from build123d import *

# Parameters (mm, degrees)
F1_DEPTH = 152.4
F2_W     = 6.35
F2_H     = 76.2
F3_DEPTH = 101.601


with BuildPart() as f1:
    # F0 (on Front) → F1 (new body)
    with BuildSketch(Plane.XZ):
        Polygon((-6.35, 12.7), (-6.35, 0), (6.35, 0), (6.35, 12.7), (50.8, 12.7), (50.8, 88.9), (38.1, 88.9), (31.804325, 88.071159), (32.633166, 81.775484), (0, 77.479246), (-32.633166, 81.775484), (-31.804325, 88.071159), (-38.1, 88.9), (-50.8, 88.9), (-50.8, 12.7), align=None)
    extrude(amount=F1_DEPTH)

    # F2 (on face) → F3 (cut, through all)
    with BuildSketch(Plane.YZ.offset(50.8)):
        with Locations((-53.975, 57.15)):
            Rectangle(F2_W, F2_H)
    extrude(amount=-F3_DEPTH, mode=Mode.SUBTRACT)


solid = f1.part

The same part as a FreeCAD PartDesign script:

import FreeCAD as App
import Part
import Sketcher
Q = App.Units.Quantity

doc = App.newDocument("Part")
body = doc.addObject("PartDesign::Body", "Body")

sketch1 = doc.addObject("Sketcher::SketchObject", "Sketch")
body.addObject(sketch1)
sketch1.AttachmentSupport = (doc.XZ_Plane, [""])
sketch1.MapMode = "FlatFace"
sketch1.addGeometry(Part.LineSegment(App.Vector(-6.35, 12.7, 0), App.Vector(-6.35, 0, 0)), False)
sketch1.addGeometry(Part.LineSegment(App.Vector(-6.35, 0, 0), App.Vector(6.35, 0, 0)), False)
sketch1.addGeometry(Part.LineSegment(App.Vector(6.35, 0, 0), App.Vector(6.35, 12.7, 0)), False)
sketch1.addGeometry(Part.LineSegment(App.Vector(6.35, 12.7, 0), App.Vector(50.8, 12.7, 0)), False)
sketch1.addGeometry(Part.LineSegment(App.Vector(50.8, 12.7, 0), App.Vector(50.8, 88.9, 0)), False)
sketch1.addGeometry(Part.LineSegment(App.Vector(50.8, 88.9, 0), App.Vector(38.1, 88.9, 0)), False)
sketch1.addGeometry(Part.LineSegment(App.Vector(38.1, 88.9, 0), App.Vector(31.804325, 88.071159, 0)), False)
sketch1.addGeometry(Part.LineSegment(App.Vector(31.804325, 88.071159, 0), App.Vector(32.633166, 81.775484, 0)), False)
sketch1.addGeometry(Part.LineSegment(App.Vector(32.633166, 81.775484, 0), App.Vector(0, 77.479246, 0)), False)
sketch1.addGeometry(Part.LineSegment(App.Vector(0, 77.479246, 0), App.Vector(-32.633166, 81.775484, 0)), False)
sketch1.addGeometry(Part.LineSegment(App.Vector(-32.633166, 81.775484, 0), App.Vector(-31.804325, 88.071159, 0)), False)
sketch1.addGeometry(Part.LineSegment(App.Vector(-31.804325, 88.071159, 0), App.Vector(-38.1, 88.9, 0)), False)
sketch1.addGeometry(Part.LineSegment(App.Vector(-38.1, 88.9, 0), App.Vector(-50.8, 88.9, 0)), False)
sketch1.addGeometry(Part.LineSegment(App.Vector(-50.8, 88.9, 0), App.Vector(-50.8, 12.7, 0)), False)
sketch1.addGeometry(Part.LineSegment(App.Vector(-50.8, 12.7, 0), App.Vector(-6.35, 12.7, 0)), False)
sketch1.addConstraint(Sketcher.Constraint("Coincident", 0, 2, 1, 1))
sketch1.addConstraint(Sketcher.Constraint("Coincident", 1, 2, 2, 1))
sketch1.addConstraint(Sketcher.Constraint("Coincident", 2, 2, 3, 1))
sketch1.addConstraint(Sketcher.Constraint("Coincident", 3, 2, 4, 1))
sketch1.addConstraint(Sketcher.Constraint("Coincident", 4, 2, 5, 1))
sketch1.addConstraint(Sketcher.Constraint("Coincident", 5, 2, 6, 1))
sketch1.addConstraint(Sketcher.Constraint("Coincident", 6, 2, 7, 1))
sketch1.addConstraint(Sketcher.Constraint("Coincident", 7, 2, 8, 1))
sketch1.addConstraint(Sketcher.Constraint("Coincident", 8, 2, 9, 1))
sketch1.addConstraint(Sketcher.Constraint("Coincident", 9, 2, 10, 1))
sketch1.addConstraint(Sketcher.Constraint("Coincident", 10, 2, 11, 1))
sketch1.addConstraint(Sketcher.Constraint("Coincident", 11, 2, 12, 1))
sketch1.addConstraint(Sketcher.Constraint("Coincident", 12, 2, 13, 1))
sketch1.addConstraint(Sketcher.Constraint("Coincident", 13, 2, 14, 1))
sketch1.addConstraint(Sketcher.Constraint("Coincident", 14, 2, 0, 1))
sketch1.addConstraint(Sketcher.Constraint("Vertical", 0))
sketch1.addConstraint(Sketcher.Constraint("Horizontal", 1))
sketch1.addConstraint(Sketcher.Constraint("Vertical", 2))
sketch1.addConstraint(Sketcher.Constraint("Horizontal", 3))
sketch1.addConstraint(Sketcher.Constraint("Vertical", 4))
sketch1.addConstraint(Sketcher.Constraint("Horizontal", 5))
sketch1.addConstraint(Sketcher.Constraint("Horizontal", 12))
sketch1.addConstraint(Sketcher.Constraint("Vertical", 13))
sketch1.addConstraint(Sketcher.Constraint("Horizontal", 14))
sketch1.addConstraint(Sketcher.Constraint("Symmetric", 0, 2, 1, 2, -1, 1))
sketch1.addConstraint(Sketcher.Constraint("Symmetric", 7, 2, 9, 2, -2))
sketch1.addConstraint(Sketcher.Constraint("Symmetric", 6, 2, 10, 2, -2))
sketch1.addConstraint(Sketcher.Constraint("Symmetric", 5, 2, 11, 2, -2))
sketch1.addConstraint(Sketcher.Constraint("Symmetric", 3, 2, 13, 2, -2))
sketch1.addConstraint(Sketcher.Constraint("PointOnObject", 8, 2, -2))
sketch1.addConstraint(Sketcher.Constraint("Perpendicular", 6, 7))
sketch1.addConstraint(Sketcher.Constraint("Perpendicular", 7, 8))
sketch1.addConstraint(Sketcher.Constraint("Equal", 1, 5))
sketch1.addConstraint(Sketcher.Constraint("Equal", 12, 0))
sketch1.addConstraint(Sketcher.Constraint("Equal", 6, 7))
sketch1.addConstraint(Sketcher.Constraint("DistanceY", 4, 1, 4, 2, Q("3 in")))
sketch1.addConstraint(Sketcher.Constraint("DistanceX", 1, 1, 1, 2, Q("0.5 in")))
sketch1.addConstraint(Sketcher.Constraint("DistanceX", -1, 1, 3, 2, Q("2 in")))
sketch1.addConstraint(Sketcher.Constraint("Angle", 6, Q("-172.500003 deg")))
sketch1.addConstraint(Sketcher.Constraint("Distance", 6, Q("0.25 in")))
pad1 = doc.addObject("PartDesign::Pad", "Pad")
body.addObject(pad1)
pad1.Profile = sketch1
pad1.Length = Q("6 in")

sketch2 = doc.addObject("Sketcher::SketchObject", "Sketch001")
body.addObject(sketch2)
sketch2.AttachmentSupport = (doc.YZ_Plane, [""])
sketch2.MapMode = "FlatFace"
sketch2.AttachmentOffset = App.Placement(App.Vector(0, 0, 2 * 25.4), App.Rotation())
sketch2.addGeometry(Part.LineSegment(App.Vector(-57.15, 95.25, 0), App.Vector(-57.15, 19.05, 0)), False)
sketch2.addGeometry(Part.LineSegment(App.Vector(-57.15, 19.05, 0), App.Vector(-50.8, 19.05, 0)), False)
sketch2.addGeometry(Part.LineSegment(App.Vector(-50.8, 19.05, 0), App.Vector(-50.8, 95.25, 0)), False)
sketch2.addGeometry(Part.LineSegment(App.Vector(-50.8, 95.25, 0), App.Vector(-57.15, 95.25, 0)), False)
sketch2.addConstraint(Sketcher.Constraint("Coincident", 0, 2, 1, 1))
sketch2.addConstraint(Sketcher.Constraint("Coincident", 1, 2, 2, 1))
sketch2.addConstraint(Sketcher.Constraint("Coincident", 2, 2, 3, 1))
sketch2.addConstraint(Sketcher.Constraint("Coincident", 3, 2, 0, 1))
sketch2.addConstraint(Sketcher.Constraint("Vertical", 0))
sketch2.addConstraint(Sketcher.Constraint("Horizontal", 1))
sketch2.addConstraint(Sketcher.Constraint("Vertical", 2))
sketch2.addConstraint(Sketcher.Constraint("Horizontal", 3))
sketch2.addConstraint(Sketcher.Constraint("DistanceY", 0, 2, 0, 1, Q("3 in")))
sketch2.addConstraint(Sketcher.Constraint("DistanceX", 1, 2, -1, 1, Q("2 in")))
sketch2.addConstraint(Sketcher.Constraint("DistanceX", 1, 1, 1, 2, Q("0.25 in")))
sketch2.addConstraint(Sketcher.Constraint("DistanceY", -1, 1, 0, 2, Q("0.75 in")))
pocket1 = doc.addObject("PartDesign::Pocket", "Pocket")
body.addObject(pocket1)
pocket1.Profile = sketch2
pocket1.Type = "ThroughAll"

doc.recompute()
